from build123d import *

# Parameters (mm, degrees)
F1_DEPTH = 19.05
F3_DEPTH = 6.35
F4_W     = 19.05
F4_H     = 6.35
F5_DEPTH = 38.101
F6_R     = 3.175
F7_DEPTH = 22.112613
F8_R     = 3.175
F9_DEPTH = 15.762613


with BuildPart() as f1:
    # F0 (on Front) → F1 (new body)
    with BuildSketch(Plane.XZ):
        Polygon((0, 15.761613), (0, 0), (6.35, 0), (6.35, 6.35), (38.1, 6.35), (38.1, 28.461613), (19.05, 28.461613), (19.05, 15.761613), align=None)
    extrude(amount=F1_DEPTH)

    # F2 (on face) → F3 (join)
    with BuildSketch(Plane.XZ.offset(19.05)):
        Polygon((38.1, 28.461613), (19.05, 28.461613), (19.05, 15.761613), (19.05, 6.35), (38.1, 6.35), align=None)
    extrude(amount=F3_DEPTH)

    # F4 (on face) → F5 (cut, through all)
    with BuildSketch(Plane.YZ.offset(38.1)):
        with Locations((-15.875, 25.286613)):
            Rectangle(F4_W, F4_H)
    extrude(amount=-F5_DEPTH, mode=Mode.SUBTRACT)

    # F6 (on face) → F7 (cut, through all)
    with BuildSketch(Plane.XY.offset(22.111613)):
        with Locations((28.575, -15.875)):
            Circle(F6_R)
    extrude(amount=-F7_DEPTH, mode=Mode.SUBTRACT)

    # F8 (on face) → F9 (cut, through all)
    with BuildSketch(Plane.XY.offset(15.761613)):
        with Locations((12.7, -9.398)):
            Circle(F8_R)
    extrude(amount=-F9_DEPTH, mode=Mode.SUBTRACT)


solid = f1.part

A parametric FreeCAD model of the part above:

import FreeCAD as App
import Part
import Sketcher
from FreeCAD import Vector
Q = App.Units.Quantity


def add_polygon(sketch, points):
    """Adds a closed chain of lines whose ends are joined by coincident constraints."""
    first, n = sketch.GeometryCount, len(points)
    for a, b in zip(points, points[1:] + points[:1]):
        sketch.addGeometry(Part.LineSegment(App.Vector(*a, 0), App.Vector(*b, 0)), False)
    for i in range(n):
        sketch.addConstraint(Sketcher.Constraint("Coincident", first + i, 2, first + (i + 1) % n, 1))

doc = App.newDocument("Part")
body = doc.addObject("PartDesign::Body", "Body")

sketch1 = doc.addObject("Sketcher::SketchObject", "Sketch")
body.addObject(sketch1)
sketch1.AttachmentSupport = (doc.XZ_Plane, [""])
sketch1.MapMode = "FlatFace"
add_polygon(sketch1, [(0, 15.761613), (0, 0), (6.35, 0), (6.35, 6.35), (38.1, 6.35), (38.1, 28.461613), (19.05, 28.461613), (19.05, 15.761613)])
sketch1.addConstraint([
    Sketcher.Constraint("Vertical", 0),
    Sketcher.Constraint("Horizontal", 1),
    Sketcher.Constraint("Vertical", 2),
    Sketcher.Constraint("Horizontal", 3),
    Sketcher.Constraint("Vertical", 4),
    Sketcher.Constraint("Horizontal", 5),
    Sketcher.Constraint("Vertical", 6),
    Sketcher.Constraint("Horizontal", 7),
    Sketcher.Constraint("Coincident", 0, 2, -1, 1),
    Sketcher.Constraint("Equal", 5, 7),
    Sketcher.Constraint("Equal", 1, 2),
    Sketcher.Constraint("DistanceY", 6, 2, 6, 1, Q("0.5 in")),
    Sketcher.Constraint("DistanceX", 1, 1, 1, 2, Q("0.25 in")),
    Sketcher.Constraint("DistanceX", 3, 1, 3, 2, Q("1.25 in")),
    Sketcher.Constraint("DistanceY", 0, 2, 0, 1, 15.761613),
])
pad1 = doc.addObject("PartDesign::Pad", "Pad")
body.addObject(pad1)
pad1.Profile = sketch1
pad1.Length = Q("0.75 in")

sketch2 = doc.addObject("Sketcher::SketchObject", "Sketch001")
body.addObject(sketch2)
sketch2.AttachmentSupport = (doc.XZ_Plane, [""])
sketch2.MapMode = "FlatFace"
sketch2.AttachmentOffset = App.Placement(Vector(0, 0, 0.75 * 25.4), App.Rotation())
add_polygon(sketch2, [(38.1, 28.461613), (19.05, 28.461613), (19.05, 6.35), (38.1, 6.35)])
sketch2.addConstraint([
    Sketcher.Constraint("Horizontal", 0),
    Sketcher.Constraint("Vertical", 1),
    Sketcher.Constraint("Horizontal", 2),
    Sketcher.Constraint("Vertical", 3),
    Sketcher.Constraint("DistanceX", 0, 2, 0, 1, Q("0.75 in")),
    Sketcher.Constraint("DistanceX", -1, 1, 2, 2, Q("1.5 in")),
    Sketcher.Constraint("DistanceY", -1, 1, 1, 2, Q("0.25 in")),
    Sketcher.Constraint("DistanceY", 1, 2, 1, 1, 22.111613),
])
pad2 = doc.addObject("PartDesign::Pad", "Pad001")
body.addObject(pad2)
pad2.Profile = sketch2
pad2.Length = Q("0.25 in")

sketch3 = doc.addObject("Sketcher::SketchObject", "Sketch002")
body.addObject(sketch3)
sketch3.AttachmentSupport = (doc.YZ_Plane, [""])
sketch3.MapMode = "FlatFace"
sketch3.AttachmentOffset = App.Placement(Vector(0, 0, 1.5 * 25.4), App.Rotation())
add_polygon(sketch3, [(-25.4, 28.461613), (-25.4, 22.111613), (-6.35, 22.111613), (-6.35, 28.461613)])
sketch3.addConstraint([
    Sketcher.Constraint("Vertical", 0),
    Sketcher.Constraint("Horizontal", 1),
    Sketcher.Constraint("Vertical", 2),
    Sketcher.Constraint("Horizontal", 3),
    Sketcher.Constraint("DistanceX", 0, 2, -1, 1, Q("1 in")),
    Sketcher.Constraint("DistanceX", 1, 1, 1, 2, Q("0.75 in")),
    Sketcher.Constraint("DistanceY", 0, 2, 0, 1, Q("0.25 in")),
    Sketcher.Constraint("DistanceY", -1, 1, 0, 2, 22.111613),
])
pocket1 = doc.addObject("PartDesign::Pocket", "Pocket")
body.addObject(pocket1)
pocket1.Profile = sketch3
pocket1.Type = "ThroughAll"

sketch4 = doc.addObject("Sketcher::SketchObject", "Sketch003")
body.addObject(sketch4)
sketch4.AttachmentSupport = (doc.XY_Plane, [""])
sketch4.MapMode = "FlatFace"
sketch4.AttachmentOffset = App.Placement(Vector(0, 0, 22.111613), App.Rotation())
sketch4.addGeometry(Part.Circle(Vector(28.575, -15.875, 0), Vector(0, 0, 1), 3.175), False)
sketch4.addConstraint([
    Sketcher.Constraint("Diameter", 0, Q("0.25 in")),
    Sketcher.Constraint("DistanceX", -1, 1, 0, 3, Q("1.125 in")),
    Sketcher.Constraint("DistanceY", 0, 3, -1, 1, Q("0.625 in")),
])
pocket2 = doc.addObject("PartDesign::Pocket", "Pocket001")
body.addObject(pocket2)
pocket2.Profile = sketch4
pocket2.Type = "ThroughAll"

sketch5 = doc.addObject("Sketcher::SketchObject", "Sketch004")
body.addObject(sketch5)
sketch5.AttachmentSupport = (doc.XY_Plane, [""])
sketch5.MapMode = "FlatFace"
sketch5.AttachmentOffset = App.Placement(Vector(0, 0, 15.761613), App.Rotation())
sketch5.addGeometry(Part.Circle(Vector(12.7, -9.398, 0), Vector(0, 0, 1), 3.175), False)
sketch5.addConstraint([
    Sketcher.Constraint("Diameter", 0, Q("0.25 in")),
    Sketcher.Constraint("DistanceX", -1, 1, 0, 3, Q("0.5 in")),
    Sketcher.Constraint("DistanceY", 0, 3, -1, 1, Q("0.37 in")),
])
pocket3 = doc.addObject("PartDesign::Pocket", "Pocket002")
body.addObject(pocket3)
pocket3.Profile = sketch5
pocket3.Type = "ThroughAll"

doc.recompute()
